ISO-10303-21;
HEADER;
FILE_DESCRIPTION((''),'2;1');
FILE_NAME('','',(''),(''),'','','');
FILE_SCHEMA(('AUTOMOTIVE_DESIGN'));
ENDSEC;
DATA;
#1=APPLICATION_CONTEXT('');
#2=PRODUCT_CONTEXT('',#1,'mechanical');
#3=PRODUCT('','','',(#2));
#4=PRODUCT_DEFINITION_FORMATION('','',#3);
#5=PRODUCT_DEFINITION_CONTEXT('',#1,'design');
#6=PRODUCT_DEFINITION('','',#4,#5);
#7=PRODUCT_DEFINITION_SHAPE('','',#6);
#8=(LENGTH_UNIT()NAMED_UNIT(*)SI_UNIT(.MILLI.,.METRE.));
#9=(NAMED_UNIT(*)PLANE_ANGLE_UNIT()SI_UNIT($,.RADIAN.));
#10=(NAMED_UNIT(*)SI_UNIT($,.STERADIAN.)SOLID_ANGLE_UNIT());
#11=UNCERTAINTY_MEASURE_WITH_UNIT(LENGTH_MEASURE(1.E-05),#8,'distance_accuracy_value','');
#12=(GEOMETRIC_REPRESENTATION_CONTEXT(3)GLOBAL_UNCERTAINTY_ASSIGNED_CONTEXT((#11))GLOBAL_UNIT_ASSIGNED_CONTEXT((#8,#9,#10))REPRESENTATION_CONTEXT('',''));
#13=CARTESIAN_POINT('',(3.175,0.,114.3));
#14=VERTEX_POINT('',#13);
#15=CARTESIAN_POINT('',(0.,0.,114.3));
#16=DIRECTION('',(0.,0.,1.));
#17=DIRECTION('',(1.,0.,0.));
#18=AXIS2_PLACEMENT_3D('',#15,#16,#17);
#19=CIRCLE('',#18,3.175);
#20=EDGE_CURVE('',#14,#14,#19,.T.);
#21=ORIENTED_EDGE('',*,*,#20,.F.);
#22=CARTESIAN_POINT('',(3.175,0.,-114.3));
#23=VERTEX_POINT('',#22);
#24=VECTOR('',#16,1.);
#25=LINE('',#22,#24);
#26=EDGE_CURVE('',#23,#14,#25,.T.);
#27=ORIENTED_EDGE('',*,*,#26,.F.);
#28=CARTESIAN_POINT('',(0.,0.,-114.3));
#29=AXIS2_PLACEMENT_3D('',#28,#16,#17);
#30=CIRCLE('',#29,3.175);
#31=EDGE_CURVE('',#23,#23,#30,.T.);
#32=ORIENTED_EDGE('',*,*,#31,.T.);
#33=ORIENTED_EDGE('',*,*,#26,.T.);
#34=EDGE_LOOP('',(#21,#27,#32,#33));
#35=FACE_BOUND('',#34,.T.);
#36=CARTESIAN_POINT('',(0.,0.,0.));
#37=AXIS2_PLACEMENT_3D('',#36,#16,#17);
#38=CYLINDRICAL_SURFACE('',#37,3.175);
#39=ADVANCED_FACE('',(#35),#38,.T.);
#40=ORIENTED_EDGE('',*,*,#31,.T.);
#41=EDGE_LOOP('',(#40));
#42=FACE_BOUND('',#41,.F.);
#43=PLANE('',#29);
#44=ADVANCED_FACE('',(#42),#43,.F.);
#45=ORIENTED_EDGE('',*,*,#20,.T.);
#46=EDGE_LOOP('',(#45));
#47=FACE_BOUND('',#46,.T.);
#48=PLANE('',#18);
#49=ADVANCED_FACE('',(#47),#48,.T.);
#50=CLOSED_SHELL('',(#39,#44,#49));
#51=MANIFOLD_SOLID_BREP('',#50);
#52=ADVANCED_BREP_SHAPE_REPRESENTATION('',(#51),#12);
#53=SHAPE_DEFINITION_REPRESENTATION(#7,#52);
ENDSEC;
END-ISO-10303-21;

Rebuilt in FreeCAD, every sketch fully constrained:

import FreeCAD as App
import Part
import Sketcher
Q = App.Units.Quantity

doc = App.newDocument("Part")
body = doc.addObject("PartDesign::Body", "Body")

sketch1 = body.newObject("Sketcher::SketchObject", "Sketch")
sketch1.AttachmentSupport = (doc.getObject("XY_Plane"), [""])
sketch1.MapMode = "FlatFace"
sketch1.addGeometry(Part.Circle(App.Vector(0, 0, 0), App.Vector(0, 0, 1), 3.175), False)
sketch1.addConstraint(Sketcher.Constraint("Coincident", 0, 3, -1, 1))
sketch1.addConstraint(Sketcher.Constraint("Diameter", 0, Q("0.25 in")))
pad1 = body.newObject("PartDesign::Pad", "Pad")
pad1.Profile = sketch1
pad1.Length = Q("9 in")
pad1.Midplane = True

doc.recompute()
